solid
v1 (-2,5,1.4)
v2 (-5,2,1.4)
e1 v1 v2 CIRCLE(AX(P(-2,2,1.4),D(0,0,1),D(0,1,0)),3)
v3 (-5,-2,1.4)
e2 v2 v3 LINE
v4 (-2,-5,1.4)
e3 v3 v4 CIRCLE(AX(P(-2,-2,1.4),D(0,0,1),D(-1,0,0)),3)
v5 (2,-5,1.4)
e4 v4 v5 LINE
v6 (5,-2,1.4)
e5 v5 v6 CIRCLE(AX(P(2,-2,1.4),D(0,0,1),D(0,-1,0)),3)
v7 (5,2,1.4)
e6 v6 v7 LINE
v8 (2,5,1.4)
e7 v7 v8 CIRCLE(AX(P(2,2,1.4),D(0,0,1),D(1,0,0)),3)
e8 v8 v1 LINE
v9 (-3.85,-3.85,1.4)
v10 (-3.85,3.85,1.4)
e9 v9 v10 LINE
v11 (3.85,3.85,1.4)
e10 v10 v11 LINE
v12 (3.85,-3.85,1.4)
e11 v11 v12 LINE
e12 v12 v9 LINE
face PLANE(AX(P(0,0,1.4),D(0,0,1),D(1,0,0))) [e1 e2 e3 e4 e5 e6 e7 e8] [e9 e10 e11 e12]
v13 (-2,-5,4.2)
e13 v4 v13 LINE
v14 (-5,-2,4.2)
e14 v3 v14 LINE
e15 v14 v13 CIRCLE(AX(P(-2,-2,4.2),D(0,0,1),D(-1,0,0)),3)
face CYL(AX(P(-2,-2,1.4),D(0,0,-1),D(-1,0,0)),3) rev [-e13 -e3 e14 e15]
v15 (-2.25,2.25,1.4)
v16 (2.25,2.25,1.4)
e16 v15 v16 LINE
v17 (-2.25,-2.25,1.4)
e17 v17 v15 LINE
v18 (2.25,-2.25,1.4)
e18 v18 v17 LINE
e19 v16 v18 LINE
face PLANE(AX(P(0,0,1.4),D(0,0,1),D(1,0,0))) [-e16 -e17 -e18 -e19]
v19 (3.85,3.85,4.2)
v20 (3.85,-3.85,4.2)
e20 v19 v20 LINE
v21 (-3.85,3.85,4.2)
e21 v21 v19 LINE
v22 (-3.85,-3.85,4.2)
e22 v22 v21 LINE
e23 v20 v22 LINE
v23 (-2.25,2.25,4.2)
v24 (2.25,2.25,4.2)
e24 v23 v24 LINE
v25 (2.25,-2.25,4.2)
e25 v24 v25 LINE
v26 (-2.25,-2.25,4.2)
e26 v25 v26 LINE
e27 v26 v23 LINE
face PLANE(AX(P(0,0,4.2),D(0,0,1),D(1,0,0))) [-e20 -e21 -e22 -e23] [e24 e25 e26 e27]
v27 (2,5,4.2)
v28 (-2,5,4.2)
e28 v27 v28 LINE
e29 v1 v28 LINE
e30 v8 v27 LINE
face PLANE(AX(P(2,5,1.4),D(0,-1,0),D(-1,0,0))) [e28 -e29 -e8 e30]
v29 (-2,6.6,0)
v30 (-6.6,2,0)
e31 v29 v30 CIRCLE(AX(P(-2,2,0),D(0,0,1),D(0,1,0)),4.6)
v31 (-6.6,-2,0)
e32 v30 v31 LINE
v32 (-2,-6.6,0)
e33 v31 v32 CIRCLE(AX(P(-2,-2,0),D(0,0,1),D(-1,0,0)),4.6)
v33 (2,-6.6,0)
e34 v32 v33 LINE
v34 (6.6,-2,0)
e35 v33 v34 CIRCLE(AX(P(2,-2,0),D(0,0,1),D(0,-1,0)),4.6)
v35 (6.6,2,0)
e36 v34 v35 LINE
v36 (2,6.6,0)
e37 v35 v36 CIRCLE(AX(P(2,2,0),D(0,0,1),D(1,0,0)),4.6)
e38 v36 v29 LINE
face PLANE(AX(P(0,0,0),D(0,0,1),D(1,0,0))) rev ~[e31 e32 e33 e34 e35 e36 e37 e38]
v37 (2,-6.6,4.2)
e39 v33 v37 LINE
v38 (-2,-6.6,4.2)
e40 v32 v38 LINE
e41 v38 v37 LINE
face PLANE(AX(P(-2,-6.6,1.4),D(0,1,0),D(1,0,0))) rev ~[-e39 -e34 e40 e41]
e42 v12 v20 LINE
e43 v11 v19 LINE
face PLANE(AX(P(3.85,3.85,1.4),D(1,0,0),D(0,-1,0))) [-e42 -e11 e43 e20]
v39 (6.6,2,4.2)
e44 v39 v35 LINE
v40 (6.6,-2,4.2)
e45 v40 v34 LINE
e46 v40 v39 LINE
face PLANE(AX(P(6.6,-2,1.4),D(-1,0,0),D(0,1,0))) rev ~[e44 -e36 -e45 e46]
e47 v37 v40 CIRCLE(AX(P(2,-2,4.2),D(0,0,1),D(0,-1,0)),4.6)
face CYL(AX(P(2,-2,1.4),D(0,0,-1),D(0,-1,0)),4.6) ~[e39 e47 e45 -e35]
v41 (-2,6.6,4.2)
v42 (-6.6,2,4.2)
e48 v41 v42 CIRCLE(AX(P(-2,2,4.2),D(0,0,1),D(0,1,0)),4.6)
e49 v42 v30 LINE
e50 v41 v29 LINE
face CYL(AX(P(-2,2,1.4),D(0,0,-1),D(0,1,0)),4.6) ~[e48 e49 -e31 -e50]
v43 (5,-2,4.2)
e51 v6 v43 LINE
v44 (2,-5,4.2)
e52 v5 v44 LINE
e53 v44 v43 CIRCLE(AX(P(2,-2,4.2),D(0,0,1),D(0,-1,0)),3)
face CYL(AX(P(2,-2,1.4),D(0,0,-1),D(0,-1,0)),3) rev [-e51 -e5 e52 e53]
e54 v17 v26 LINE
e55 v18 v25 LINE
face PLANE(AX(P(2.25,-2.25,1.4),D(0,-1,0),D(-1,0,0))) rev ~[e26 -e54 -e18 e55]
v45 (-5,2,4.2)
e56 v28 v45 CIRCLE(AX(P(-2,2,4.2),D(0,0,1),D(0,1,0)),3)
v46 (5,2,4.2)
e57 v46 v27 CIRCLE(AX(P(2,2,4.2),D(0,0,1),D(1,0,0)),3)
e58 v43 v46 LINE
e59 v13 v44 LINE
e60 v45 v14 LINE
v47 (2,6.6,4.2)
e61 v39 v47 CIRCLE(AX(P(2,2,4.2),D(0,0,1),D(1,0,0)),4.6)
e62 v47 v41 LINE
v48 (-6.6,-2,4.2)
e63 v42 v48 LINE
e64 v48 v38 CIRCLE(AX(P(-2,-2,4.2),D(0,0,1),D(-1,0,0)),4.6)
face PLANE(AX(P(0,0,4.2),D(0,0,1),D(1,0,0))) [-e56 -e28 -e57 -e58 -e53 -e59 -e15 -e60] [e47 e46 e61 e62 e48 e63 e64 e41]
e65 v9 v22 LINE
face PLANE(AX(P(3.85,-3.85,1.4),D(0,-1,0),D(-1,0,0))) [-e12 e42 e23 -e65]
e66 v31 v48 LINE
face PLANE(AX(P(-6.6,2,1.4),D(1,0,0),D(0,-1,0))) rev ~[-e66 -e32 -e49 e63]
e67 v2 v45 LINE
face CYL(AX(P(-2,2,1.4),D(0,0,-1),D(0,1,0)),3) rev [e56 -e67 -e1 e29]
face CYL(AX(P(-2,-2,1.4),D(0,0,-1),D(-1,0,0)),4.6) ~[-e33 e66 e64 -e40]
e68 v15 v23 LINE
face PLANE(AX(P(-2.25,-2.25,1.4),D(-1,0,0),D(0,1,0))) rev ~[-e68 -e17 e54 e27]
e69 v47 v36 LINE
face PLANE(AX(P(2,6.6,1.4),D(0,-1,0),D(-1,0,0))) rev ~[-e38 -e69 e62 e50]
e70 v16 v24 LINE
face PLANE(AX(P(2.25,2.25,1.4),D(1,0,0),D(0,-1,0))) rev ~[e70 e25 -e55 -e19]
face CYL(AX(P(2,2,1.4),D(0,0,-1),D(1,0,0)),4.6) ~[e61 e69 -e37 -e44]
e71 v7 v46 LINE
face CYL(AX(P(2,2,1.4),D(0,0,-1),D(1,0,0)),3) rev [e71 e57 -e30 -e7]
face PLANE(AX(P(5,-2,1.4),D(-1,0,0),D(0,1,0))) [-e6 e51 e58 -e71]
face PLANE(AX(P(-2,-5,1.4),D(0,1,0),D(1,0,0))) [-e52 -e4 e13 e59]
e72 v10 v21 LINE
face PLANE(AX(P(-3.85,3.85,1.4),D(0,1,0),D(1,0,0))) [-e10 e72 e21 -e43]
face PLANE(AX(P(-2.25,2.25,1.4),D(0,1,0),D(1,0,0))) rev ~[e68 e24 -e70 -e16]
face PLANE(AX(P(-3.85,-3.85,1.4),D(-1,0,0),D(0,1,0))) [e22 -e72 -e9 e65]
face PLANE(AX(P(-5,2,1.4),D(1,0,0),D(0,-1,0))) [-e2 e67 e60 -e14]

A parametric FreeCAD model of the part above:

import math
import FreeCAD as App
import Part
import Sketcher
Q = App.Units.Quantity


def add_polygon(sketch, points):
    """Adds a closed chain of lines whose ends are joined by coincident constraints."""
    first, n = sketch.GeometryCount, len(points)
    for a, b in zip(points, points[1:] + points[:1]):
        sketch.addGeometry(Part.LineSegment(App.Vector(*a, 0), App.Vector(*b, 0)), False)
    for i in range(n):
        sketch.addConstraint(Sketcher.Constraint("Coincident", first + i, 2, first + (i + 1) % n, 1))

doc = App.newDocument("Part")
params = doc.addObject("Spreadsheet::Sheet", "Params")
for row, (alias, value) in enumerate([
    ("sketch1_radius", "4.6 mm"),
    ("sketch1_width", "4 mm"),
    ("pad1_length", "1.4 mm"),
    ("sketch2_width", "4.5 mm"),
    ("pad2_length", "2.8 mm"),
    ("sketch3_radius", "3 mm"),
    ("sketch3_radius2", "4.6 mm"),
    ("sketch3_width", "4 mm"),
    ("pad3_length", "2.8 mm"),
], start=1):
    params.set(f"A{row}", alias)
    params.set(f"B{row}", "=" + value)
    params.setAlias(f"B{row}", alias)

body = doc.addObject("PartDesign::Body", "Body")

# Sketch on XY plane
sketch1 = body.newObject("Sketcher::SketchObject", "Sketch")
sketch1.AttachmentSupport = (doc.getObject("XY_Plane"), [""])
sketch1.MapMode = "FlatFace"
sketch1.addGeometry(Part.LineSegment(App.Vector(-6.6, 2, 0), App.Vector(-6.6, -2, 0)), False)
sketch1.addGeometry(Part.ArcOfCircle(Part.Circle(App.Vector(-2, -2, 0), App.Vector(0, 0, 1), 4.6), math.radians(180), math.radians(270)), False)
sketch1.addGeometry(Part.LineSegment(App.Vector(-2, -6.6, 0), App.Vector(2, -6.6, 0)), False)
sketch1.addGeometry(Part.ArcOfCircle(Part.Circle(App.Vector(2, -2, 0), App.Vector(0, 0, 1), 4.6), math.radians(-90), math.radians(0)), False)
sketch1.addGeometry(Part.LineSegment(App.Vector(6.6, -2, 0), App.Vector(6.6, 2, 0)), False)
sketch1.addGeometry(Part.ArcOfCircle(Part.Circle(App.Vector(2, 2, 0), App.Vector(0, 0, 1), 4.6), math.radians(0), math.radians(90)), False)
sketch1.addGeometry(Part.LineSegment(App.Vector(2, 6.6, 0), App.Vector(-2, 6.6, 0)), False)
sketch1.addGeometry(Part.ArcOfCircle(Part.Circle(App.Vector(-2, 2, 0), App.Vector(0, 0, 1), 4.6), math.radians(90), math.radians(180)), False)
sketch1.addConstraint(Sketcher.Constraint("Tangent", 0, 2, 1, 1))
sketch1.addConstraint(Sketcher.Constraint("Tangent", 1, 2, 2, 1))
sketch1.addConstraint(Sketcher.Constraint("Tangent", 2, 2, 3, 1))
sketch1.addConstraint(Sketcher.Constraint("Tangent", 3, 2, 4, 1))
sketch1.addConstraint(Sketcher.Constraint("Tangent", 4, 2, 5, 1))
sketch1.addConstraint(Sketcher.Constraint("Tangent", 5, 2, 6, 1))
sketch1.addConstraint(Sketcher.Constraint("Tangent", 6, 2, 7, 1))
sketch1.addConstraint(Sketcher.Constraint("Tangent", 7, 2, 0, 1))
sketch1.addConstraint(Sketcher.Constraint("Vertical", 0))
sketch1.addConstraint(Sketcher.Constraint("Horizontal", 2))
sketch1.addConstraint(Sketcher.Constraint("Vertical", 4))
sketch1.addConstraint(Sketcher.Constraint("Horizontal", 6))
sketch1.addConstraint(Sketcher.Constraint("Equal", 1, 3))
sketch1.addConstraint(Sketcher.Constraint("Equal", 3, 5))
sketch1.addConstraint(Sketcher.Constraint("Equal", 5, 7))
sketch1.addConstraint(Sketcher.Constraint("Symmetric", 1, 3, 5, 3, -1, 1))
sketch1.addConstraint(Sketcher.Constraint("Equal", 6, 0))
sketch1.addConstraint(Sketcher.Constraint("Radius", 1, Q("4.6 mm")))
sketch1.addConstraint(Sketcher.Constraint("DistanceX", 2, 1, 2, 2, Q("4 mm")))
sketch1.setExpression("Constraints[17]", "Params.sketch1_radius")
sketch1.setExpression("Constraints[18]", "Params.sketch1_width")
pad1 = body.newObject("PartDesign::Pad", "Pad")
pad1.Profile = sketch1
pad1.setExpression("Length", "Params.pad1_length")

# Sketch on XY plane
sketch2 = body.newObject("Sketcher::SketchObject", "Sketch001")
sketch2.AttachmentSupport = (doc.getObject("XY_Plane"), [""])
sketch2.MapMode = "FlatFace"
sketch2.AttachmentOffset = App.Placement(App.Vector(0, 0, 1.4), App.Rotation())
add_polygon(sketch2, [(-3.9, -3.9), (3.9, -3.9), (3.9, 3.9), (-3.9, 3.9)])  # lines 0-3
add_polygon(sketch2, [(2.2, 2.2), (2.2, -2.2), (-2.2, -2.2), (-2.2, 2.2)])  # lines 4-7
sketch2.addConstraint(Sketcher.Constraint("Horizontal", 0))
sketch2.addConstraint(Sketcher.Constraint("Vertical", 1))
sketch2.addConstraint(Sketcher.Constraint("Horizontal", 2))
sketch2.addConstraint(Sketcher.Constraint("Vertical", 3))
sketch2.addConstraint(Sketcher.Constraint("Vertical", 4))
sketch2.addConstraint(Sketcher.Constraint("Horizontal", 5))
sketch2.addConstraint(Sketcher.Constraint("Vertical", 6))
sketch2.addConstraint(Sketcher.Constraint("Horizontal", 7))
sketch2.addConstraint(Sketcher.Constraint("Symmetric", 0, 2, 2, 2, -1, 1))
sketch2.addConstraint(Sketcher.Constraint("Symmetric", 4, 2, 6, 2, -1, 1))
sketch2.addConstraint(Sketcher.Constraint("Equal", 2, 1))
sketch2.addConstraint(Sketcher.Constraint("Equal", 7, 4))
sketch2.addConstraint(Sketcher.Constraint("DistanceX", 5, 2, 5, 1, Q("4.5 mm")))
sketch2.addConstraint(Sketcher.Constraint("DistanceX", 4, 2, 0, 2, Q("1.6 mm")))
sketch2.setExpression("Constraints[20]", "Params.sketch2_width")
pad2 = body.newObject("PartDesign::Pad", "Pad001")
pad2.Profile = sketch2
pad2.setExpression("Length", "Params.pad2_length")

# Sketch on XY plane
sketch3 = body.newObject("Sketcher::SketchObject", "Sketch002")
sketch3.AttachmentSupport = (doc.getObject("XY_Plane"), [""])
sketch3.MapMode = "FlatFace"
sketch3.AttachmentOffset = App.Placement(App.Vector(0, 0, 1.4), App.Rotation())
sketch3.addGeometry(Part.LineSegment(App.Vector(-6.6, 2, 0), App.Vector(-6.6, -2, 0)), False)
sketch3.addGeometry(Part.ArcOfCircle(Part.Circle(App.Vector(-2, -2, 0), App.Vector(0, 0, 1), 4.6), math.radians(180), math.radians(270)), False)
sketch3.addGeometry(Part.LineSegment(App.Vector(-2, -6.6, 0), App.Vector(2, -6.6, 0)), False)
sketch3.addGeometry(Part.ArcOfCircle(Part.Circle(App.Vector(2, -2, 0), App.Vector(0, 0, 1), 4.6), math.radians(-90), math.radians(0)), False)
sketch3.addGeometry(Part.LineSegment(App.Vector(6.6, -2, 0), App.Vector(6.6, 2, 0)), False)
sketch3.addGeometry(Part.ArcOfCircle(Part.Circle(App.Vector(2, 2, 0), App.Vector(0, 0, 1), 4.6), math.radians(0), math.radians(90)), False)
sketch3.addGeometry(Part.LineSegment(App.Vector(2, 6.6, 0), App.Vector(-2, 6.6, 0)), False)
sketch3.addGeometry(Part.ArcOfCircle(Part.Circle(App.Vector(-2, 2, 0), App.Vector(0, 0, 1), 4.6), math.radians(90), math.radians(180)), False)
sketch3.addGeometry(Part.LineSegment(App.Vector(-2, 5, 0), App.Vector(2, 5, 0)), False)
sketch3.addGeometry(Part.ArcOfCircle(Part.Circle(App.Vector(2, 2, 0), App.Vector(0, 0, 1), 3), math.radians(0), math.radians(90)), False)
sketch3.addGeometry(Part.LineSegment(App.Vector(5, 2, 0), App.Vector(5, -2, 0)), False)
sketch3.addGeometry(Part.ArcOfCircle(Part.Circle(App.Vector(2, -2, 0), App.Vector(0, 0, 1), 3), math.radians(-90), math.radians(0)), False)
sketch3.addGeometry(Part.LineSegment(App.Vector(2, -5, 0), App.Vector(-2, -5, 0)), False)
sketch3.addGeometry(Part.ArcOfCircle(Part.Circle(App.Vector(-2, -2, 0), App.Vector(0, 0, 1), 3), math.radians(180), math.radians(270)), False)
sketch3.addGeometry(Part.LineSegment(App.Vector(-5, -2, 0), App.Vector(-5, 2, 0)), False)
sketch3.addGeometry(Part.ArcOfCircle(Part.Circle(App.Vector(-2, 2, 0), App.Vector(0, 0, 1), 3), math.radians(90), math.radians(180)), False)
sketch3.addConstraint(Sketcher.Constraint("Tangent", 0, 2, 1, 1))
sketch3.addConstraint(Sketcher.Constraint("Tangent", 1, 2, 2, 1))
sketch3.addConstraint(Sketcher.Constraint("Tangent", 2, 2, 3, 1))
sketch3.addConstraint(Sketcher.Constraint("Tangent", 3, 2, 4, 1))
sketch3.addConstraint(Sketcher.Constraint("Tangent", 4, 2, 5, 1))
sketch3.addConstraint(Sketcher.Constraint("Tangent", 5, 2, 6, 1))
sketch3.addConstraint(Sketcher.Constraint("Tangent", 6, 2, 7, 1))
sketch3.addConstraint(Sketcher.Constraint("Tangent", 7, 2, 0, 1))
sketch3.addConstraint(Sketcher.Constraint("Tangent", 8, 2, 9, 2))
sketch3.addConstraint(Sketcher.Constraint("Tangent", 9, 1, 10, 1))
sketch3.addConstraint(Sketcher.Constraint("Tangent", 10, 2, 11, 2))
sketch3.addConstraint(Sketcher.Constraint("Tangent", 11, 1, 12, 1))
sketch3.addConstraint(Sketcher.Constraint("Tangent", 12, 2, 13, 2))
sketch3.addConstraint(Sketcher.Constraint("Tangent", 13, 1, 14, 1))
sketch3.addConstraint(Sketcher.Constraint("Tangent", 14, 2, 15, 2))
sketch3.addConstraint(Sketcher.Constraint("Tangent", 15, 1, 8, 1))
sketch3.addConstraint(Sketcher.Constraint("Vertical", 0))
sketch3.addConstraint(Sketcher.Constraint("Horizontal", 2))
sketch3.addConstraint(Sketcher.Constraint("Vertical", 4))
sketch3.addConstraint(Sketcher.Constraint("Horizontal", 6))
sketch3.addConstraint(Sketcher.Constraint("Horizontal", 8))
sketch3.addConstraint(Sketcher.Constraint("Vertical", 10))
sketch3.addConstraint(Sketcher.Constraint("Horizontal", 12))
sketch3.addConstraint(Sketcher.Constraint("Vertical", 14))
sketch3.addConstraint(Sketcher.Constraint("Coincident", 9, 3, 5, 3))
sketch3.addConstraint(Sketcher.Constraint("Coincident", 11, 3, 3, 3))
sketch3.addConstraint(Sketcher.Constraint("Coincident", 13, 3, 1, 3))
sketch3.addConstraint(Sketcher.Constraint("Equal", 1, 3))
sketch3.addConstraint(Sketcher.Constraint("Equal", 3, 5))
sketch3.addConstraint(Sketcher.Constraint("Equal", 5, 7))
sketch3.addConstraint(Sketcher.Constraint("Equal", 13, 15))
sketch3.addConstraint(Sketcher.Constraint("Symmetric", 1, 3, 5, 3, -1, 1))
sketch3.addConstraint(Sketcher.Constraint("Equal", 12, 0))
sketch3.addConstraint(Sketcher.Constraint("Radius", 9, Q("3 mm")))
sketch3.addConstraint(Sketcher.Constraint("Radius", 1, Q("4.6 mm")))
sketch3.addConstraint(Sketcher.Constraint("DistanceX", 2, 1, 2, 2, Q("4 mm")))
sketch3.setExpression("Constraints[33]", "Params.sketch3_radius")
sketch3.setExpression("Constraints[34]", "Params.sketch3_radius2")
sketch3.setExpression("Constraints[35]", "Params.sketch3_width")
pad3 = body.newObject("PartDesign::Pad", "Pad002")
pad3.Profile = sketch3
pad3.setExpression("Length", "Params.pad3_length")

doc.recompute()
